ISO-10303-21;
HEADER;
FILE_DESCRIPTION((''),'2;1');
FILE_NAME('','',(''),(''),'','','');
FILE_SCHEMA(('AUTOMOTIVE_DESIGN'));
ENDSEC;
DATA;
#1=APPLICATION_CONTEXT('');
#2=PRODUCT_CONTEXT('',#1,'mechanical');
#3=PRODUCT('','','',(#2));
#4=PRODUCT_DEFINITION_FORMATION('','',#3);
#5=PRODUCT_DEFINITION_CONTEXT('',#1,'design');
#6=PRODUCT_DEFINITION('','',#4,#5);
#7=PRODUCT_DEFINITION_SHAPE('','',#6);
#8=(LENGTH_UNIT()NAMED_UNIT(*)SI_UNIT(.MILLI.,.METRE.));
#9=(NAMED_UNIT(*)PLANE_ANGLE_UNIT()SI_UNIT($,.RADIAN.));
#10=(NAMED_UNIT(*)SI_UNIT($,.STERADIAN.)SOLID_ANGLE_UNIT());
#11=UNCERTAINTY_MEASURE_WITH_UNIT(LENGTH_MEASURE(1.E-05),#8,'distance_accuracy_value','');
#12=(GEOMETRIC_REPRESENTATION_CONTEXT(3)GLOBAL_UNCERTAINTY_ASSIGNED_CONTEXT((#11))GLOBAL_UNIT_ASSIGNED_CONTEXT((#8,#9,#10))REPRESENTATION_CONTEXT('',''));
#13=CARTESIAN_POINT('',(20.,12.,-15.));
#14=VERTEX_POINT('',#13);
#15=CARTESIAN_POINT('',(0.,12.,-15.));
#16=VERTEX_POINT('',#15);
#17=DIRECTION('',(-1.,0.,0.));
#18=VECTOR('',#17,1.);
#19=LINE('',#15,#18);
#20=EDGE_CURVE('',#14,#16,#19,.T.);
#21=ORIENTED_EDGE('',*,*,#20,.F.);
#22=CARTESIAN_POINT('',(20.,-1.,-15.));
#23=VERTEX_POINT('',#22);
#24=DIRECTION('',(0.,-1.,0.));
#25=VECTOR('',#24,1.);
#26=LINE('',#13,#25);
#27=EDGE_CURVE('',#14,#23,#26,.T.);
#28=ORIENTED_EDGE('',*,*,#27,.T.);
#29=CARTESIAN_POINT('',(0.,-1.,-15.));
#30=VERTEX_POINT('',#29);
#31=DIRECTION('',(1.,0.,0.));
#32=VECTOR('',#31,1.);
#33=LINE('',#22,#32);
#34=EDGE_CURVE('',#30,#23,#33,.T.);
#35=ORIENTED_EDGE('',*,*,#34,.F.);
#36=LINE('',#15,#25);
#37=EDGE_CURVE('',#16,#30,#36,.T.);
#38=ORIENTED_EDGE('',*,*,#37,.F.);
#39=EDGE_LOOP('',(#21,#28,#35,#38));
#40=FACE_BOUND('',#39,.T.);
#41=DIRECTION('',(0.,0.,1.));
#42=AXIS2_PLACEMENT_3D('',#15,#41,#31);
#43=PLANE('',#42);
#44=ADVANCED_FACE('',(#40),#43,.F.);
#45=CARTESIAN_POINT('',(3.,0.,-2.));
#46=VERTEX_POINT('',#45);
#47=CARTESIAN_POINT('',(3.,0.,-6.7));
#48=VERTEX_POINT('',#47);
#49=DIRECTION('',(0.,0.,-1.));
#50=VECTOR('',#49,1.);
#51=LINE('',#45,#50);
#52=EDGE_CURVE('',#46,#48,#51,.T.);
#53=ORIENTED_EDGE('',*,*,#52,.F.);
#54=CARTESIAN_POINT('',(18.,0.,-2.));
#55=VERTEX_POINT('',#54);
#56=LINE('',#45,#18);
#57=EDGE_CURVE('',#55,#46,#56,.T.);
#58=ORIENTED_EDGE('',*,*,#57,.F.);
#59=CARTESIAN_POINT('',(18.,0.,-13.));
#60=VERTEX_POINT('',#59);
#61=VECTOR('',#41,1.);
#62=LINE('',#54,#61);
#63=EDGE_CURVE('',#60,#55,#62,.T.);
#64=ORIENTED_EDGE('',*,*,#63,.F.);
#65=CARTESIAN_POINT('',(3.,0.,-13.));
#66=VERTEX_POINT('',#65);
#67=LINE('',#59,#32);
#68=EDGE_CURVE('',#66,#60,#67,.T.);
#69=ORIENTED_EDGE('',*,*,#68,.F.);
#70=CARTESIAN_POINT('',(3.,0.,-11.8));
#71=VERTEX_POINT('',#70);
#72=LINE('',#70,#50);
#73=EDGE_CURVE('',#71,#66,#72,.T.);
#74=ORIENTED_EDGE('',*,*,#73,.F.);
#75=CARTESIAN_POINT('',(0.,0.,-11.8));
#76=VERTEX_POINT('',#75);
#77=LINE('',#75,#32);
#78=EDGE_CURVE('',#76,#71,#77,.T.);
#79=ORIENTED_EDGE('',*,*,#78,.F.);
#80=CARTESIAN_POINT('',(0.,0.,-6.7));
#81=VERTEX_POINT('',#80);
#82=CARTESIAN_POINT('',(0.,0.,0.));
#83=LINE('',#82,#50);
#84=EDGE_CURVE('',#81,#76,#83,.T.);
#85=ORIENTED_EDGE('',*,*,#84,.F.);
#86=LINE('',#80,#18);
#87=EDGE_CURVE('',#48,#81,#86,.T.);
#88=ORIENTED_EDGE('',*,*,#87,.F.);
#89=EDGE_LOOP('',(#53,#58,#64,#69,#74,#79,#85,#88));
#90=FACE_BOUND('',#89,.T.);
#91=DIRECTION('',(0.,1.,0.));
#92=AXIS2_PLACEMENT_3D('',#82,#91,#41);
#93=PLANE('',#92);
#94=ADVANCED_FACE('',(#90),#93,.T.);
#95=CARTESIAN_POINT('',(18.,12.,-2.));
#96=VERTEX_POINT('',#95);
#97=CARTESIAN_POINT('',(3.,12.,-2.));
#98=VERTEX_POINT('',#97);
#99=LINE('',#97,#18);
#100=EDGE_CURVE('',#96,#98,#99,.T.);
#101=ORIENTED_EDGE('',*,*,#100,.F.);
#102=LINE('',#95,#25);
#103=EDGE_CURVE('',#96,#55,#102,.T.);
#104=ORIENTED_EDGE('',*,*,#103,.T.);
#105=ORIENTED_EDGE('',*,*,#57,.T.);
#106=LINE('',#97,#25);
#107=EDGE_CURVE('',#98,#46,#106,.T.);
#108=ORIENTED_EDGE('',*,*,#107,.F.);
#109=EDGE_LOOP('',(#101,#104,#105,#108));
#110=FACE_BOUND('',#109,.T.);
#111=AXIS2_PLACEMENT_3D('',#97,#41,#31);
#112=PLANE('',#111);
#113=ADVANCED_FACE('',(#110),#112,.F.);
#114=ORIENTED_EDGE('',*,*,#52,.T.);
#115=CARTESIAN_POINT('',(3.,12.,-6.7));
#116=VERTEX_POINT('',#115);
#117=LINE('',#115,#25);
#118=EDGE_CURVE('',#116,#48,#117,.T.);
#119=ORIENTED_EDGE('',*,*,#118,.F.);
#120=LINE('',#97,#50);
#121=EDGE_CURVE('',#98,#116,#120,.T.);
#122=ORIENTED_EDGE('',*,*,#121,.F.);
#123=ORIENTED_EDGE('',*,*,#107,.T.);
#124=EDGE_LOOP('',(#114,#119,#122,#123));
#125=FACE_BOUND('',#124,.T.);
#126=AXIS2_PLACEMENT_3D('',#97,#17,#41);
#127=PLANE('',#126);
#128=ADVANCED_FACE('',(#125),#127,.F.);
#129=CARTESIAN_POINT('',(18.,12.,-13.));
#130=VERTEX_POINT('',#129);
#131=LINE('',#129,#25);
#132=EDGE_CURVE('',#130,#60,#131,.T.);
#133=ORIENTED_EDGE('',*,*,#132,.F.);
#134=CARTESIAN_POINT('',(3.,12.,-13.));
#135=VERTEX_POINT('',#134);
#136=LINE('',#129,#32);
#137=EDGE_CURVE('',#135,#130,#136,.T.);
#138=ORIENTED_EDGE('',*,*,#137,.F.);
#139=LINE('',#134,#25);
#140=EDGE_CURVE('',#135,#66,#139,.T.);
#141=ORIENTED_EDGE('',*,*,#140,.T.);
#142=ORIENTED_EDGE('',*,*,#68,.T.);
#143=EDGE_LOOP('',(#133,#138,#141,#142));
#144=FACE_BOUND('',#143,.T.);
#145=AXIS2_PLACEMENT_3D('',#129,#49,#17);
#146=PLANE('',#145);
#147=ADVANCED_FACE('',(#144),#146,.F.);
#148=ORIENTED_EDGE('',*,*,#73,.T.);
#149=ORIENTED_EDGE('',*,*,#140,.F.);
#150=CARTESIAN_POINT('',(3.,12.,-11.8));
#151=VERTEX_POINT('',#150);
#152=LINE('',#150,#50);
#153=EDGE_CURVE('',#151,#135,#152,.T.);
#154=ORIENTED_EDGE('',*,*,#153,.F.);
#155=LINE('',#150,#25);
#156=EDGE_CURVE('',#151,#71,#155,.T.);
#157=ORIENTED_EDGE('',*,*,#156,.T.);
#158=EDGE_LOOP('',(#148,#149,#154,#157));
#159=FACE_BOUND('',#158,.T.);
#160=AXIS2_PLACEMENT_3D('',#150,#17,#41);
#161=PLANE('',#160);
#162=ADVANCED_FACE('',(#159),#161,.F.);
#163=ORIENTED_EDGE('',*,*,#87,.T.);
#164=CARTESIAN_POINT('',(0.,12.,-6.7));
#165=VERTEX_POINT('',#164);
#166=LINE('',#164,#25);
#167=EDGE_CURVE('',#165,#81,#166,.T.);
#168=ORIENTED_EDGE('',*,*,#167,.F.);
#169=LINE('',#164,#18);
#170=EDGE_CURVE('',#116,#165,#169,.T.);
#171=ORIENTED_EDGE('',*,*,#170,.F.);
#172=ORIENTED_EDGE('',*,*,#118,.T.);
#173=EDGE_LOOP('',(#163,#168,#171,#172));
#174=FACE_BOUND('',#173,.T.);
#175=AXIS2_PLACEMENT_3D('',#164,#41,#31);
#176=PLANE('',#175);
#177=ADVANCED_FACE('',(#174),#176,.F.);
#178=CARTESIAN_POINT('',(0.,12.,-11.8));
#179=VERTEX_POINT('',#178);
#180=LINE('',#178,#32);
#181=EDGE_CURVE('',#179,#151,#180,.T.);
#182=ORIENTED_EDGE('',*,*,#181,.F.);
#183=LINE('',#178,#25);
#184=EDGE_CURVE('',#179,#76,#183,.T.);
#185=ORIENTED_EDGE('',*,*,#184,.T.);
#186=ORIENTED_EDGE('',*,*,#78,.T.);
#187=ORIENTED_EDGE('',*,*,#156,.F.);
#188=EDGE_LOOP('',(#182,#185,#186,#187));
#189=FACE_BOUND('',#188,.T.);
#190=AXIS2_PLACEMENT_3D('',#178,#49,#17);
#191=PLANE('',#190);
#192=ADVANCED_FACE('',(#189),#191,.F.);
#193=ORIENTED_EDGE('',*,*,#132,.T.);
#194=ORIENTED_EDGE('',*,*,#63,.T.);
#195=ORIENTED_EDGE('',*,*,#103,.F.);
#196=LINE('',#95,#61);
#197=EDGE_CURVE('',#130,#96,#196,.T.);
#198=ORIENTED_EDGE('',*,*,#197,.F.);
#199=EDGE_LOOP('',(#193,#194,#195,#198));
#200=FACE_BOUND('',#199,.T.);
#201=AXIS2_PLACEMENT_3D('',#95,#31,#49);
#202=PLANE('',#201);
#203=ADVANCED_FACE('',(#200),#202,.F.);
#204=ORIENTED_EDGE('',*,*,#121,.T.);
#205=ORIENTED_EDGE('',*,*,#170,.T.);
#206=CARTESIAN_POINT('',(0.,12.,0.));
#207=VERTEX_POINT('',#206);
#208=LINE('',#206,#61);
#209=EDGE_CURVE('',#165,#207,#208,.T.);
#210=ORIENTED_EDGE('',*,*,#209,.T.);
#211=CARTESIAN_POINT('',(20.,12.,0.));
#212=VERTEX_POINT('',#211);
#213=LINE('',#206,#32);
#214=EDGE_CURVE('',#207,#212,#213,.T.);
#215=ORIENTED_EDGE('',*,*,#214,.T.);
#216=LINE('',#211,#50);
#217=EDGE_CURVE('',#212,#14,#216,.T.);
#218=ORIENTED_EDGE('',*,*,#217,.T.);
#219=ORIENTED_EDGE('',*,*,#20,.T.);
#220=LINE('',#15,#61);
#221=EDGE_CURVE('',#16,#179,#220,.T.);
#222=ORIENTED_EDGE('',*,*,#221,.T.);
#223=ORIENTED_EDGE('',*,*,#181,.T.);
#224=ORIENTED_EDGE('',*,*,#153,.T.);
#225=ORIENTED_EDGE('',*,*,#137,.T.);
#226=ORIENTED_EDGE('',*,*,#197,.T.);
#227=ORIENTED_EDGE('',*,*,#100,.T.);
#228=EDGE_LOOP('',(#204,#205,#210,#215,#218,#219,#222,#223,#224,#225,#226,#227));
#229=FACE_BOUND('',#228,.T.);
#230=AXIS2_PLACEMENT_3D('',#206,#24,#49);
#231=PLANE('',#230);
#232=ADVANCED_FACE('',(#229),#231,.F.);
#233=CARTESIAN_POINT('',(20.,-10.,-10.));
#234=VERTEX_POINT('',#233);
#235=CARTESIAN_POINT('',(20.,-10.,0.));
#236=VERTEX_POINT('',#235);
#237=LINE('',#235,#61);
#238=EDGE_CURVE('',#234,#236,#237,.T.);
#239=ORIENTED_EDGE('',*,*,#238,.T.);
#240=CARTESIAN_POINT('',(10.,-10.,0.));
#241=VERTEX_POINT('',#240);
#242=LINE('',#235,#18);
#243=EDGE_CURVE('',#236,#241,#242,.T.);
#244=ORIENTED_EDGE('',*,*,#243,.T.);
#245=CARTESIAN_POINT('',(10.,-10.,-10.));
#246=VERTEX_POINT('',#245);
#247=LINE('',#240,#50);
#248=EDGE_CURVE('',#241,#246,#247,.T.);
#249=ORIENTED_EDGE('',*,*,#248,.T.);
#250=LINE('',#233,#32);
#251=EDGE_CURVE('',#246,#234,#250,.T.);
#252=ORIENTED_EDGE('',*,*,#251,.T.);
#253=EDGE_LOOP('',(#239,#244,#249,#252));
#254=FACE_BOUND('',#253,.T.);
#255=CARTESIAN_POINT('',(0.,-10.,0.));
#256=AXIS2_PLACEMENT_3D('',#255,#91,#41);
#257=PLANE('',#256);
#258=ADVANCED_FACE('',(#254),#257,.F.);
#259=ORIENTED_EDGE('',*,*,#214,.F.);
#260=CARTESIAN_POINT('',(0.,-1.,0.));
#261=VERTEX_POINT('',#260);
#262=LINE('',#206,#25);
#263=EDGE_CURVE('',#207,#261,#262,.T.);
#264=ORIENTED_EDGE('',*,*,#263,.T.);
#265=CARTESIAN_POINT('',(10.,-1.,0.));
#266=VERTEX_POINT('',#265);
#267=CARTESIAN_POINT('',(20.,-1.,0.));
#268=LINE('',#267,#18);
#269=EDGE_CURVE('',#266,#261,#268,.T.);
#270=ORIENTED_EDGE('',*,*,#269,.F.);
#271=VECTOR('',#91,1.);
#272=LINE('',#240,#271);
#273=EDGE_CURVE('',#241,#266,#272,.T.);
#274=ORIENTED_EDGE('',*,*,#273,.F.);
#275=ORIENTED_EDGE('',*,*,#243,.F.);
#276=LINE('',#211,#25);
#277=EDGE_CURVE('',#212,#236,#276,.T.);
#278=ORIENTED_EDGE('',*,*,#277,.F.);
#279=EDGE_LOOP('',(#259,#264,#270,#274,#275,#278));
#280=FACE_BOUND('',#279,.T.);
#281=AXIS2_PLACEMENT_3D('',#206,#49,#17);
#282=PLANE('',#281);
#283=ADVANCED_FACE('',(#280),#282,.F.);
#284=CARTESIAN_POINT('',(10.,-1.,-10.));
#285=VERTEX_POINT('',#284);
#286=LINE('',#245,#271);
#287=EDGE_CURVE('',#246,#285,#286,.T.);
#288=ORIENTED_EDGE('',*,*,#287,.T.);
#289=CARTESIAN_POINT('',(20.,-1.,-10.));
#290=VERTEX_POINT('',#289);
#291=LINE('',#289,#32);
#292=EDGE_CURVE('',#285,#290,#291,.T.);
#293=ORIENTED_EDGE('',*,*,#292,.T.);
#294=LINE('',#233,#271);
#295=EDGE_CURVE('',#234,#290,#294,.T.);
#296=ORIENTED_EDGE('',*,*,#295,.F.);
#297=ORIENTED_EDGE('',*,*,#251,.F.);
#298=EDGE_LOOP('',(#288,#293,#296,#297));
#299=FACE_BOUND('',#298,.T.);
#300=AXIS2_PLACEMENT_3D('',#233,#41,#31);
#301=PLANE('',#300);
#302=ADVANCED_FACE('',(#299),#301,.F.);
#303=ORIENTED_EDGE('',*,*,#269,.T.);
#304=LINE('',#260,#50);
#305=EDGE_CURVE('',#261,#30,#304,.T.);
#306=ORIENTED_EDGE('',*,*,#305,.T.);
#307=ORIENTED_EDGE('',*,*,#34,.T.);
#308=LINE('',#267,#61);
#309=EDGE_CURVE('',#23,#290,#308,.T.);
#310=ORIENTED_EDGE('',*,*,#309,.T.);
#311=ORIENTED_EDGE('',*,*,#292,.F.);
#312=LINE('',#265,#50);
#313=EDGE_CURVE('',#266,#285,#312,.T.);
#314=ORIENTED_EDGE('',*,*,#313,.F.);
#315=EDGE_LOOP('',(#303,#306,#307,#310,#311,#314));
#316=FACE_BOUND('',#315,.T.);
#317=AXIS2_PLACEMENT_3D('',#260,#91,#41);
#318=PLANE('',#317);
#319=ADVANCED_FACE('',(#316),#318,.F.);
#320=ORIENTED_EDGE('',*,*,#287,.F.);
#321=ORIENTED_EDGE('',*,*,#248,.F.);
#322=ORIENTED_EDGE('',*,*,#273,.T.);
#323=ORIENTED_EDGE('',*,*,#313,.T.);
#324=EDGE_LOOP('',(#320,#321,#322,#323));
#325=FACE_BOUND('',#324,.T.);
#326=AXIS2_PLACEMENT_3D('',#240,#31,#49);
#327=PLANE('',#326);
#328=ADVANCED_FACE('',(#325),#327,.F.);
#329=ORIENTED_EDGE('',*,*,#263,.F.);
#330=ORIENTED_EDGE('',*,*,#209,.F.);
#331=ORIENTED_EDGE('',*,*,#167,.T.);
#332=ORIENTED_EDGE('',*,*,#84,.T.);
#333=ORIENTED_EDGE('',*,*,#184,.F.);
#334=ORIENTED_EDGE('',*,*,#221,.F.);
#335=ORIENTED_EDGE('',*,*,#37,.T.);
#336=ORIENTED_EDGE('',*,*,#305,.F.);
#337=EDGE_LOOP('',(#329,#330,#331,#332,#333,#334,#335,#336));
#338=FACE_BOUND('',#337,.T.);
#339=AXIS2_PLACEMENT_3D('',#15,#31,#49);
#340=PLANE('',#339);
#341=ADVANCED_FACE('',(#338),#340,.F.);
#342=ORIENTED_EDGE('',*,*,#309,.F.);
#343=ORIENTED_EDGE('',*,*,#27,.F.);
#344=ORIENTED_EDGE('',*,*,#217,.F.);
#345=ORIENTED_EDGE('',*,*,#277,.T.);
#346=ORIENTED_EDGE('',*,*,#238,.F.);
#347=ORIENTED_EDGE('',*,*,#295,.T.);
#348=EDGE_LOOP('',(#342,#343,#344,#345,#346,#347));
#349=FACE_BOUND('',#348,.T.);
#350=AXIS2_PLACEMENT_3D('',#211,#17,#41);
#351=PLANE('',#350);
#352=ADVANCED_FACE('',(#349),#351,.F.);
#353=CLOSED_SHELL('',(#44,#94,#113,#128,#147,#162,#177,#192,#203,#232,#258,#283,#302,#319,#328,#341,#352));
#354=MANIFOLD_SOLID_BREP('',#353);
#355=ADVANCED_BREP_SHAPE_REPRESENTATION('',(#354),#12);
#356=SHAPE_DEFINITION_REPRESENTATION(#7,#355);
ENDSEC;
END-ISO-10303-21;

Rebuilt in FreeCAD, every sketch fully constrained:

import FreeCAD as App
import Part
import Sketcher

V = App.Vector
Q = App.Units.Quantity

doc = App.newDocument("Part")
body = doc.addObject("PartDesign::Body", "Body")

# Sketch on XZ plane
sketch1 = body.newObject("Sketcher::SketchObject", "Sketch")
sketch1.AttachmentSupport = (doc.getObject("XZ_Plane"), [""])
sketch1.MapMode = "FlatFace"
sketch1.addGeometry([
    Part.LineSegment(V(18, -2, 0), V(3, -2, 0)),  # 0
    Part.LineSegment(V(3, -2, 0), V(3, -6.7, 0)),  # 1
    Part.LineSegment(V(3, -6.7, 0), V(0, -6.7, 0)),  # 2
    Part.LineSegment(V(0, -6.7, 0), V(0, 0, 0)),  # 3
    Part.LineSegment(V(0, 0, 0), V(20, 0, 0)),  # 4
    Part.LineSegment(V(20, 0, 0), V(20, -15, 0)),  # 5
    Part.LineSegment(V(20, -15, 0), V(0, -15, 0)),  # 6
    Part.LineSegment(V(0, -15, 0), V(0, -11.8, 0)),  # 7
    Part.LineSegment(V(0, -11.8, 0), V(3, -11.8, 0)),  # 8
    Part.LineSegment(V(3, -11.8, 0), V(3, -13, 0)),  # 9
    Part.LineSegment(V(3, -13, 0), V(18, -13, 0)),  # 10
    Part.LineSegment(V(18, -13, 0), V(18, -2, 0)),  # 11
], False)
sketch1.addConstraint([
    Sketcher.Constraint("Coincident", 0, 2, 1, 1),
    Sketcher.Constraint("Coincident", 1, 2, 2, 1),
    Sketcher.Constraint("Coincident", 2, 2, 3, 1),
    Sketcher.Constraint("Coincident", 3, 2, 4, 1),
    Sketcher.Constraint("Coincident", 4, 2, 5, 1),
    Sketcher.Constraint("Coincident", 5, 2, 6, 1),
    Sketcher.Constraint("Coincident", 6, 2, 7, 1),
    Sketcher.Constraint("Coincident", 7, 2, 8, 1),
    Sketcher.Constraint("Coincident", 8, 2, 9, 1),
    Sketcher.Constraint("Coincident", 9, 2, 10, 1),
    Sketcher.Constraint("Coincident", 10, 2, 11, 1),
    Sketcher.Constraint("Coincident", 11, 2, 0, 1),
    Sketcher.Constraint("Horizontal", 0),
    Sketcher.Constraint("Vertical", 1),
    Sketcher.Constraint("Horizontal", 2),
    Sketcher.Constraint("Vertical", 3),
    Sketcher.Constraint("Horizontal", 4),
    Sketcher.Constraint("Vertical", 5),
    Sketcher.Constraint("Horizontal", 6),
    Sketcher.Constraint("Vertical", 7),
    Sketcher.Constraint("Horizontal", 8),
    Sketcher.Constraint("Vertical", 9),
    Sketcher.Constraint("Horizontal", 10),
    Sketcher.Constraint("Vertical", 11),
    Sketcher.Constraint("Coincident", 3, 2, -1, 1),
    Sketcher.Constraint("PointOnObject", 6, 2, -2),
    Sketcher.Constraint("Vertical", 1, 2, 8, 2),
    Sketcher.Constraint("Equal", 10, 5),
    Sketcher.Constraint("DistanceX", 0, 2, 0, 1, Q("15 mm")),
    Sketcher.Constraint("DistanceX", 2, 2, 2, 1, Q("3 mm")),
    Sketcher.Constraint("DistanceX", 4, 1, 4, 2, Q("20 mm")),
    Sketcher.Constraint("DistanceY", 11, 1, 11, 2, Q("11 mm")),
    Sketcher.Constraint("DistanceY", 1, 2, 1, 1, Q("4.7 mm")),
    Sketcher.Constraint("DistanceY", 3, 1, 3, 2, Q("6.7 mm")),
    Sketcher.Constraint("DistanceY", 7, 1, 7, 2, Q("3.2 mm")),
])
pad1 = body.newObject("PartDesign::Pad", "Pad")
pad1.Profile = sketch1
pad1.Length = 12
pad1.Reversed = True

# Sketch on XZ plane
sketch2 = body.newObject("Sketcher::SketchObject", "Sketch001")
sketch2.AttachmentSupport = (doc.getObject("XZ_Plane"), [""])
sketch2.MapMode = "FlatFace"
sketch2.addGeometry([
    Part.LineSegment(V(0, 0, 0), V(0, -15, 0)),
    Part.LineSegment(V(0, -15, 0), V(20, -15, 0)),
    Part.LineSegment(V(20, -15, 0), V(20, 0, 0)),
    Part.LineSegment(V(20, 0, 0), V(0, 0, 0)),
], False)
sketch2.addConstraint([
    Sketcher.Constraint("Coincident", 0, 2, 1, 1),
    Sketcher.Constraint("Coincident", 1, 2, 2, 1),
    Sketcher.Constraint("Coincident", 2, 2, 3, 1),
    Sketcher.Constraint("Coincident", 3, 2, 0, 1),
    Sketcher.Constraint("Vertical", 0),
    Sketcher.Constraint("Horizontal", 1),
    Sketcher.Constraint("Vertical", 2),
    Sketcher.Constraint("Horizontal", 3),
    Sketcher.Constraint("Coincident", 3, 2, -1, 1),
    Sketcher.Constraint("DistanceX", 1, 1, 1, 2, Q("20 mm")),
    Sketcher.Constraint("DistanceY", 0, 2, 0, 1, Q("15 mm")),
])
pad2 = body.newObject("PartDesign::Pad", "Pad001")
pad2.Profile = sketch2
pad2.Length = 1

# Sketch on XZ plane
sketch3 = body.newObject("Sketcher::SketchObject", "Sketch002")
sketch3.AttachmentSupport = (doc.getObject("XZ_Plane"), [""])
sketch3.MapMode = "FlatFace"
sketch3.AttachmentOffset = App.Placement(V(0, 0, 1), App.Rotation())
sketch3.addGeometry([
    Part.LineSegment(V(10, 0, 0), V(10, -10, 0)),
    Part.LineSegment(V(10, -10, 0), V(20, -10, 0)),
    Part.LineSegment(V(20, -10, 0), V(20, 0, 0)),
    Part.LineSegment(V(20, 0, 0), V(10, 0, 0)),
], False)
sketch3.addConstraint([
    Sketcher.Constraint("Coincident", 0, 2, 1, 1),
    Sketcher.Constraint("Coincident", 1, 2, 2, 1),
    Sketcher.Constraint("Coincident", 2, 2, 3, 1),
    Sketcher.Constraint("Coincident", 3, 2, 0, 1),
    Sketcher.Constraint("Vertical", 0),
    Sketcher.Constraint("Horizontal", 1),
    Sketcher.Constraint("Vertical", 2),
    Sketcher.Constraint("Horizontal", 3),
    Sketcher.Constraint("PointOnObject", 2, 2, -1),
    Sketcher.Constraint("Equal", 3, 0),
    Sketcher.Constraint("DistanceX", 1, 1, 1, 2, Q("10 mm")),
    Sketcher.Constraint("DistanceX", -1, 1, 0, 2, Q("10 mm")),
])
pad3 = body.newObject("PartDesign::Pad", "Pad002")
pad3.Profile = sketch3
pad3.Length = 9

doc.recompute()
